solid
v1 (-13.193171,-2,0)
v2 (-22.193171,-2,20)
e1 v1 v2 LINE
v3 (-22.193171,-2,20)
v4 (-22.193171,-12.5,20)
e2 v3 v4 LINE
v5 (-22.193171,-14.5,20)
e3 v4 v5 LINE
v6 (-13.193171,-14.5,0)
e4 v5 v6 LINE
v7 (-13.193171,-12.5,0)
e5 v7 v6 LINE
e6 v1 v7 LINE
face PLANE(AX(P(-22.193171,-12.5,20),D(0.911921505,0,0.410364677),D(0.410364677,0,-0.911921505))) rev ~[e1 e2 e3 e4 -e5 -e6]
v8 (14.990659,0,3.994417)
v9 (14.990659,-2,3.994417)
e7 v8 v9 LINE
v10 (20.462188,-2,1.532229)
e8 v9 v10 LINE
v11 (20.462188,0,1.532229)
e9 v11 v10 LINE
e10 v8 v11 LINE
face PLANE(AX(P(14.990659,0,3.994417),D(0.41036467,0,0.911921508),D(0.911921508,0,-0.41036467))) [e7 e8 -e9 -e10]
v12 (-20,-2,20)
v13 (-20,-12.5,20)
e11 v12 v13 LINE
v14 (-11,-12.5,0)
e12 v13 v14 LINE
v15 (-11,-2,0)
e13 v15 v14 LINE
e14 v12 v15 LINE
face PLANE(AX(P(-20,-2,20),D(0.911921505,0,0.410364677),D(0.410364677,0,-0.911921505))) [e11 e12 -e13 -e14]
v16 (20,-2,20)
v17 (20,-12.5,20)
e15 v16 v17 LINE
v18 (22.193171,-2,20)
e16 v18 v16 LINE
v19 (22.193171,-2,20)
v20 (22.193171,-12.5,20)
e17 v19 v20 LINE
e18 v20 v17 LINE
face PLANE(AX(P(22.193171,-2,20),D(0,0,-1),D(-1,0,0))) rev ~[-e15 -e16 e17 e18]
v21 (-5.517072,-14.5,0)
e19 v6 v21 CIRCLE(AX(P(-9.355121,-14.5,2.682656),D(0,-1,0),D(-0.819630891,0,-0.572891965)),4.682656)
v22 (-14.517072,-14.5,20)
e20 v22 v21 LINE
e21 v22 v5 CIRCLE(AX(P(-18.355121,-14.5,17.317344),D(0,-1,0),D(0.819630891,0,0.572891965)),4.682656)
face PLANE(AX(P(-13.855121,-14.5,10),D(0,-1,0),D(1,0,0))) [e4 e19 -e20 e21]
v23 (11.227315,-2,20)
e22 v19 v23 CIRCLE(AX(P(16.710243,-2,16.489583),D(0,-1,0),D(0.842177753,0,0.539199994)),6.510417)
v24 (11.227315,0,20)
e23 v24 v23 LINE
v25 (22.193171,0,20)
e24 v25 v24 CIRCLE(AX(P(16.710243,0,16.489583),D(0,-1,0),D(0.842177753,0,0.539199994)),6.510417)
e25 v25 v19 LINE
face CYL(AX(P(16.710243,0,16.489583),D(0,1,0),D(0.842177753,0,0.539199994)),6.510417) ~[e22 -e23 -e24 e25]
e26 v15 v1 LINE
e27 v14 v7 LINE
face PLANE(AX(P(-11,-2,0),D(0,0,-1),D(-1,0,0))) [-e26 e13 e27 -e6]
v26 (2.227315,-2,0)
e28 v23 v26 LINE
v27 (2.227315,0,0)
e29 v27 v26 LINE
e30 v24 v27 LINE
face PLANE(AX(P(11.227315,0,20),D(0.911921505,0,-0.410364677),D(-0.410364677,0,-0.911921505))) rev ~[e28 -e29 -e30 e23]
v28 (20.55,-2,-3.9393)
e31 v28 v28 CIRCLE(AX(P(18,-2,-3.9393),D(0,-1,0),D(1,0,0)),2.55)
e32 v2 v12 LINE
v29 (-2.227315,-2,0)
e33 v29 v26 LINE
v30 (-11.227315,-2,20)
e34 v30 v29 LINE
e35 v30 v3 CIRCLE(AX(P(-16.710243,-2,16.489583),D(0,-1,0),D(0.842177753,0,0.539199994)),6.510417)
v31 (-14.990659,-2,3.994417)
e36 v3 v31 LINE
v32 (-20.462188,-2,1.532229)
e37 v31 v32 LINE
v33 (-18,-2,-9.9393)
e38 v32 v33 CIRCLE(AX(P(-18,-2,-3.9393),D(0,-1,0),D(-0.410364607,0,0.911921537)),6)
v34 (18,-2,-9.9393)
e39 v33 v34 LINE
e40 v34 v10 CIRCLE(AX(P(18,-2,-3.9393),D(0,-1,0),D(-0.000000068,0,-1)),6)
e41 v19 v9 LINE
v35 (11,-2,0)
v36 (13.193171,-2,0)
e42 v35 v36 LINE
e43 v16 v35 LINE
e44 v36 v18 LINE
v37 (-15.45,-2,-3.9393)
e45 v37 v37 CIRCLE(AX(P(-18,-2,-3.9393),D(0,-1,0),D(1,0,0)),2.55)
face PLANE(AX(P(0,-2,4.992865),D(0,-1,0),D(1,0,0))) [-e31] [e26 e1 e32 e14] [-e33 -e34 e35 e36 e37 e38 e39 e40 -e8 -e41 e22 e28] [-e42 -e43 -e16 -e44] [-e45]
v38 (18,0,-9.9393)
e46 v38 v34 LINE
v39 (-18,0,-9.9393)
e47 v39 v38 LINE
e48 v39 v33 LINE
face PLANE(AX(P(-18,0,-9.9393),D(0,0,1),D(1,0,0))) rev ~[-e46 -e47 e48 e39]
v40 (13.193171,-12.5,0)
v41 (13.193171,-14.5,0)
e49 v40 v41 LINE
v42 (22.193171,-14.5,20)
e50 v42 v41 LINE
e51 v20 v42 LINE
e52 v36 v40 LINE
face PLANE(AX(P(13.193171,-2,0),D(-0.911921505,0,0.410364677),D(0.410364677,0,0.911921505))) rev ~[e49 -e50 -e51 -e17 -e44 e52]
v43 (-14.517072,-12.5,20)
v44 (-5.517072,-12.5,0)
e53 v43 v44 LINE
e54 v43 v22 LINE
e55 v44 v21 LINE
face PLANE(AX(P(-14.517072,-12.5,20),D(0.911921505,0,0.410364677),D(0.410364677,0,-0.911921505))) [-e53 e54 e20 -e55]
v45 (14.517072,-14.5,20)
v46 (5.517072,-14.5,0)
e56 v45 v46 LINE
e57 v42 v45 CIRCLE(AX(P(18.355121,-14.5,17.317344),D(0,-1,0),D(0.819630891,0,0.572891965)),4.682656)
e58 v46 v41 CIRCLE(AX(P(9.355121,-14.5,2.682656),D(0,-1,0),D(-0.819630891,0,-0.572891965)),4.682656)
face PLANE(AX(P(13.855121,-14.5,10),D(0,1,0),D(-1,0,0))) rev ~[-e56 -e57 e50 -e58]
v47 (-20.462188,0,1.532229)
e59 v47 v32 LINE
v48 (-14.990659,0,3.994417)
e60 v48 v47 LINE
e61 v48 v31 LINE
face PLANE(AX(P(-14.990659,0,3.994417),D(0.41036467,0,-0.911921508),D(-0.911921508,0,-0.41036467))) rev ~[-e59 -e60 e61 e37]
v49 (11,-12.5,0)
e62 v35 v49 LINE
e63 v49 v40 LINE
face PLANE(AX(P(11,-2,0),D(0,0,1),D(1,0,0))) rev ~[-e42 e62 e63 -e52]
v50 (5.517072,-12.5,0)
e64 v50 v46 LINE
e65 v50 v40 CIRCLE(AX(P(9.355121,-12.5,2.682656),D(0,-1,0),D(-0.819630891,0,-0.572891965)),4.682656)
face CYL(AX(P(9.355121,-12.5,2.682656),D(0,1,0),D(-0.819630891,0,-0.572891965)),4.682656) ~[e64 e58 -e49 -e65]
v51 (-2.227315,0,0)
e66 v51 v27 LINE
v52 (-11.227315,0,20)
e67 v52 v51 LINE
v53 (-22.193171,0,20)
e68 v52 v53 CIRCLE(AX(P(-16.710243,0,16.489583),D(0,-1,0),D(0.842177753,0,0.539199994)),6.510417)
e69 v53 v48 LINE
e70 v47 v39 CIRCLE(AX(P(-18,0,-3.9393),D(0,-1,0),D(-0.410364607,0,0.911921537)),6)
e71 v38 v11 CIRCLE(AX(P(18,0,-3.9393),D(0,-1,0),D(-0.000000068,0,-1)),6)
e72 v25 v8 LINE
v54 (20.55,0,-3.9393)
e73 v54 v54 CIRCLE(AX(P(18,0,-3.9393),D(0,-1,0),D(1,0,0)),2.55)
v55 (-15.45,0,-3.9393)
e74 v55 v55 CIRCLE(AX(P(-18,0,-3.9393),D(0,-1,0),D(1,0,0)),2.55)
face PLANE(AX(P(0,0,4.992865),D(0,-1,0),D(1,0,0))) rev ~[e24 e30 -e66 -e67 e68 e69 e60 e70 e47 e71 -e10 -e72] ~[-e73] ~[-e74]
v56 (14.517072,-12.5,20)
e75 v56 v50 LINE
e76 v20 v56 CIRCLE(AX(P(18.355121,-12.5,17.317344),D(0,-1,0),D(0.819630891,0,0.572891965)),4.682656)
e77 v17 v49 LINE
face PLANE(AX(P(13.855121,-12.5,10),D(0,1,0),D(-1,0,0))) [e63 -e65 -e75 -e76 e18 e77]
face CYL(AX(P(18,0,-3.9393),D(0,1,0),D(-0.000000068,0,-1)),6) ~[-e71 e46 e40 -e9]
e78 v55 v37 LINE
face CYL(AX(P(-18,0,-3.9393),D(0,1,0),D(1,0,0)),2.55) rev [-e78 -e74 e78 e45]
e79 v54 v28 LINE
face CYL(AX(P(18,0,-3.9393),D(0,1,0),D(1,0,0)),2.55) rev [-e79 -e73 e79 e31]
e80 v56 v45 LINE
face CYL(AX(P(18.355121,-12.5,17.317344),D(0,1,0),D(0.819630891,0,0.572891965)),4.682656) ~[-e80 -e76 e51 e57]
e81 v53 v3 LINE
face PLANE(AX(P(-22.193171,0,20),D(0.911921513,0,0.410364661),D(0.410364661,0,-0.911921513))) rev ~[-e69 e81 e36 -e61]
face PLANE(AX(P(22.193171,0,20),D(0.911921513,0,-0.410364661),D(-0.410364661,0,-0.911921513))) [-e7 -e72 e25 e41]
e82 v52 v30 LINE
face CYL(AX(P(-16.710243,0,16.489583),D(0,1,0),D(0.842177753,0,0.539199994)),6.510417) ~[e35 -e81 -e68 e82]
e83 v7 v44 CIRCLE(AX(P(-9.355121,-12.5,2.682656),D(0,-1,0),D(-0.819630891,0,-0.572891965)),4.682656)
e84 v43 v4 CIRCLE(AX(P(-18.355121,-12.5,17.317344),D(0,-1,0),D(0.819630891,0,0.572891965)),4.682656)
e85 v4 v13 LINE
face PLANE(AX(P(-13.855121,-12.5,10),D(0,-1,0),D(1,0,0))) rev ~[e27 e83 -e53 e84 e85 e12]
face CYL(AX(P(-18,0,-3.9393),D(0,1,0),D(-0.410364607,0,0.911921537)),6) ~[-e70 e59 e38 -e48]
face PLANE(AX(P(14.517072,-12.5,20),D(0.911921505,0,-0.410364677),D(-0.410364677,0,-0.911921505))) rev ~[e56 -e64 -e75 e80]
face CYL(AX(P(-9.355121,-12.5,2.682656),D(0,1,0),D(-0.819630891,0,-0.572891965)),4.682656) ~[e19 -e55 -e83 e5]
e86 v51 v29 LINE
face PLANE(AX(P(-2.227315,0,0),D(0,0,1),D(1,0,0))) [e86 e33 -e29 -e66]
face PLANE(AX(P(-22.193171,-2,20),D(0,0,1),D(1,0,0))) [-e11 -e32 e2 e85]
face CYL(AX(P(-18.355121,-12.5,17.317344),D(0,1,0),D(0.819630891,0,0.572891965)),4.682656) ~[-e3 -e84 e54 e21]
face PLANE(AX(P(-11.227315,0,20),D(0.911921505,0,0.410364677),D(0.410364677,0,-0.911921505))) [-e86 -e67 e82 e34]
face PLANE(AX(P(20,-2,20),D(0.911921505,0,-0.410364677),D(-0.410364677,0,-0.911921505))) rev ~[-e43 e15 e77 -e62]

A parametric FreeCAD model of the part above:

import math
import FreeCAD as App
import Part
import Sketcher


def add_polygon(sketch, points):
    """Adds a closed chain of lines whose ends are joined by coincident constraints."""
    first, n = sketch.GeometryCount, len(points)
    for a, b in zip(points, points[1:] + points[:1]):
        sketch.addGeometry(Part.LineSegment(App.Vector(*a, 0), App.Vector(*b, 0)), False)
    for i in range(n):
        sketch.addConstraint(Sketcher.Constraint("Coincident", first + i, 2, first + (i + 1) % n, 1))

doc = App.newDocument("Part")
body = doc.addObject("PartDesign::Body", "Body")

sketch1 = doc.addObject("Sketcher::SketchObject", "Sketch")
body.addObject(sketch1)
sketch1.AttachmentSupport = (doc.XZ_Plane, [""])
sketch1.MapMode = "FlatFace"
sketch1.addGeometry([
    Part.LineSegment(App.Vector(-22.2, 20, 0), App.Vector(-15, 4, 0)),
    Part.LineSegment(App.Vector(-15, 4, 0), App.Vector(-20.5, 1.5, 0)),
    Part.ArcOfCircle(Part.Circle(App.Vector(-18, -3.9, 0), App.Vector(0, 0, 1), 6), math.radians(114), math.radians(270)),
    Part.LineSegment(App.Vector(-18, -9.9, 0), App.Vector(18, -9.9, 0)),
    Part.ArcOfCircle(Part.Circle(App.Vector(18, -3.9, 0), App.Vector(0, 0, 1), 6), math.radians(-90), math.radians(66)),
    Part.LineSegment(App.Vector(20.5, 1.5, 0), App.Vector(15, 4, 0)),
    Part.LineSegment(App.Vector(15, 4, 0), App.Vector(22.2, 20, 0)),
    Part.ArcOfCircle(Part.Circle(App.Vector(16.7, 16.5, 0), App.Vector(0, 0, 1), 6.5), math.radians(33), math.radians(147)),
    Part.LineSegment(App.Vector(11.2, 20, 0), App.Vector(2.2, 0, 0)),
    Part.LineSegment(App.Vector(2.2, 0, 0), App.Vector(-2.2, 0, 0)),
    Part.LineSegment(App.Vector(-2.2, 0, 0), App.Vector(-11.2, 20, 0)),
    Part.ArcOfCircle(Part.Circle(App.Vector(-16.7, 16.5, 0), App.Vector(0, 0, 1), 6.5), math.radians(33), math.radians(147)),
    Part.Circle(App.Vector(-18, -3.9, 0), App.Vector(0, 0, 1), 2.5),
    Part.Circle(App.Vector(18, -3.9, 0), App.Vector(0, 0, 1), 2.5),
], False)
sketch1.addConstraint([
    Sketcher.Constraint("Coincident", 0, 2, 1, 1),
    Sketcher.Constraint("Tangent", 1, 2, 2, 1),
    Sketcher.Constraint("Tangent", 2, 2, 3, 1),
    Sketcher.Constraint("Tangent", 3, 2, 4, 1),
    Sketcher.Constraint("Tangent", 4, 2, 5, 1),
    Sketcher.Constraint("Coincident", 5, 2, 6, 1),
    Sketcher.Constraint("Coincident", 6, 2, 7, 1),
    Sketcher.Constraint("Coincident", 7, 2, 8, 1),
    Sketcher.Constraint("Coincident", 8, 2, 9, 1),
    Sketcher.Constraint("Coincident", 9, 2, 10, 1),
    Sketcher.Constraint("Coincident", 10, 2, 11, 1),
    Sketcher.Constraint("Coincident", 11, 2, 0, 1),
    Sketcher.Constraint("Horizontal", 3),
    Sketcher.Constraint("Horizontal", 9),
    Sketcher.Constraint("Coincident", 12, 3, 2, 3),
    Sketcher.Constraint("Coincident", 13, 3, 4, 3),
    Sketcher.Constraint("Equal", 2, 4),
    Sketcher.Constraint("Equal", 7, 11),
    Sketcher.Constraint("Equal", 12, 13),
    Sketcher.Constraint("Symmetric", 8, 2, 9, 2, -1, 1),
    Sketcher.Constraint("Symmetric", 7, 3, 11, 3, -2),
    Sketcher.Constraint("Symmetric", 1, 2, 4, 2, -2),
    Sketcher.Constraint("Perpendicular", 0, 1),
    Sketcher.Constraint("Perpendicular", 5, 6),
    Sketcher.Constraint("Parallel", 6, 8),
    Sketcher.Constraint("Perpendicular", 1, 10),
    Sketcher.Constraint("Horizontal", 0, 2, 5, 2),
    Sketcher.Constraint("Horizontal", 6, 2, 7, 2),
    Sketcher.Constraint("Radius", 2, 6.0),
    Sketcher.Constraint("Diameter", 12, 5.1),
    Sketcher.Constraint("DistanceX", 3, 1, 3, 2, 36.0),
    Sketcher.Constraint("Distance", 1, 6.0),
    Sketcher.Constraint("DistanceY", -1, 1, 6, 2, 20.0),
    Sketcher.Constraint("DistanceX", 10, 2, 9, 2, 9.0),
    Sketcher.Constraint("Radius", 7, 6.510417),
    Sketcher.Constraint("DistanceX", 9, 2, 9, 1, 4.45463),
    Sketcher.Constraint("DistanceY", 2, 3, -1, 1, 3.9393),
])
pad1 = doc.addObject("PartDesign::Pad", "Pad")
body.addObject(pad1)
pad1.Profile = sketch1
pad1.Length = 2

sketch2 = doc.addObject("Sketcher::SketchObject", "Sketch001")
body.addObject(sketch2)
sketch2.AttachmentSupport = (doc.XZ_Plane, [""])
sketch2.MapMode = "FlatFace"
sketch2.AttachmentOffset = App.Placement(App.Vector(0, 0, 2), App.Rotation())
add_polygon(sketch2, [(-11, 0), (-20, 20), (-22.2, 20), (-13.2, 0)])
add_polygon(sketch2, [(20, 20), (11, 0), (13.2, 0), (22.2, 20)])
sketch2.addConstraint([
    Sketcher.Constraint("Horizontal", 1),
    Sketcher.Constraint("Horizontal", 3),
    Sketcher.Constraint("Horizontal", 5),
    Sketcher.Constraint("Horizontal", 7),
    Sketcher.Constraint("Symmetric", 3, 2, 4, 2, -1, 1),
    Sketcher.Constraint("Symmetric", 2, 2, 5, 2, -2),
    Sketcher.Constraint("Symmetric", 1, 2, 6, 2, -2),
    Sketcher.Constraint("Parallel", 0, 2),
    Sketcher.Constraint("Parallel", 4, 6),
    Sketcher.Constraint("DistanceX", 0, 2, -1, 1, 20.0),
    Sketcher.Constraint("DistanceY", -1, 1, 0, 2, 20.0),
    Sketcher.Constraint("DistanceX", 3, 2, -1, 1, 11.0),
    Sketcher.Constraint("DistanceX", 1, 2, 1, 1, 2.193171),
])
pad2 = doc.addObject("PartDesign::Pad", "Pad001")
body.addObject(pad2)
pad2.Profile = sketch2
pad2.Length = 10.5

sketch3 = doc.addObject("Sketcher::SketchObject", "Sketch002")
body.addObject(sketch3)
sketch3.AttachmentSupport = (doc.XZ_Plane, [""])
sketch3.MapMode = "FlatFace"
sketch3.AttachmentOffset = App.Placement(App.Vector(0, 0, 12.5), App.Rotation())
sketch3.addGeometry([
    Part.LineSegment(App.Vector(-22.2, 20, 0), App.Vector(-13.2, 0, 0)),
    Part.ArcOfCircle(Part.Circle(App.Vector(-9.4, 2.7, 0), App.Vector(0, 0, 1), 4.7), math.radians(-145), math.radians(-35)),
    Part.LineSegment(App.Vector(-5.5, 0, 0), App.Vector(-14.5, 20, 0)),
    Part.ArcOfCircle(Part.Circle(App.Vector(-18.4, 17.3, 0), App.Vector(0, 0, 1), 4.7), math.radians(35), math.radians(145)),
    Part.LineSegment(App.Vector(13.2, 0, 0), App.Vector(22.2, 20, 0)),
    Part.ArcOfCircle(Part.Circle(App.Vector(18.4, 17.3, 0), App.Vector(0, 0, 1), 4.7), math.radians(35), math.radians(145)),
    Part.LineSegment(App.Vector(14.5, 20, 0), App.Vector(5.5, 0, 0)),
    Part.ArcOfCircle(Part.Circle(App.Vector(9.4, 2.7, 0), App.Vector(0, 0, 1), 4.7), math.radians(-145), math.radians(-35)),
], False)
sketch3.addConstraint([
    Sketcher.Constraint("Coincident", 0, 2, 1, 1),
    Sketcher.Constraint("Coincident", 1, 2, 2, 1),
    Sketcher.Constraint("Coincident", 2, 2, 3, 1),
    Sketcher.Constraint("Coincident", 3, 2, 0, 1),
    Sketcher.Constraint("Coincident", 4, 2, 5, 1),
    Sketcher.Constraint("Coincident", 5, 2, 6, 1),
    Sketcher.Constraint("Coincident", 6, 2, 7, 1),
    Sketcher.Constraint("Coincident", 7, 2, 4, 1),
    Sketcher.Constraint("Equal", 1, 3),
    Sketcher.Constraint("Equal", 3, 5),
    Sketcher.Constraint("Equal", 5, 7),
    Sketcher.Constraint("Symmetric", 1, 2, 6, 2, -1, 1),
    Sketcher.Constraint("Symmetric", 0, 2, 7, 2, -1, 1),
    Sketcher.Constraint("Symmetric", 3, 3, 5, 3, -2),
    Sketcher.Constraint("Symmetric", 1, 3, 7, 3, -2),
    Sketcher.Constraint("Parallel", 0, 2),
    Sketcher.Constraint("Parallel", 4, 6),
    Sketcher.Constraint("Horizontal", 2, 2, 3, 2),
    Sketcher.Constraint("Horizontal", 3, 2, 4, 2),
    Sketcher.Constraint("DistanceY", -1, 1, 2, 2, 20.0),
    Sketcher.Constraint("DistanceX", 3, 3, 1, 3, 9.0),
    Sketcher.Constraint("Radius", 1, 4.682656),
    Sketcher.Constraint("DistanceX", 0, 2, 1, 2, 7.676099),
    Sketcher.Constraint("DistanceX", 1, 3, -1, 1, 9.355121),
])
pad3 = doc.addObject("PartDesign::Pad", "Pad002")
body.addObject(pad3)
pad3.Profile = sketch3
pad3.Length = 2

doc.recompute()
